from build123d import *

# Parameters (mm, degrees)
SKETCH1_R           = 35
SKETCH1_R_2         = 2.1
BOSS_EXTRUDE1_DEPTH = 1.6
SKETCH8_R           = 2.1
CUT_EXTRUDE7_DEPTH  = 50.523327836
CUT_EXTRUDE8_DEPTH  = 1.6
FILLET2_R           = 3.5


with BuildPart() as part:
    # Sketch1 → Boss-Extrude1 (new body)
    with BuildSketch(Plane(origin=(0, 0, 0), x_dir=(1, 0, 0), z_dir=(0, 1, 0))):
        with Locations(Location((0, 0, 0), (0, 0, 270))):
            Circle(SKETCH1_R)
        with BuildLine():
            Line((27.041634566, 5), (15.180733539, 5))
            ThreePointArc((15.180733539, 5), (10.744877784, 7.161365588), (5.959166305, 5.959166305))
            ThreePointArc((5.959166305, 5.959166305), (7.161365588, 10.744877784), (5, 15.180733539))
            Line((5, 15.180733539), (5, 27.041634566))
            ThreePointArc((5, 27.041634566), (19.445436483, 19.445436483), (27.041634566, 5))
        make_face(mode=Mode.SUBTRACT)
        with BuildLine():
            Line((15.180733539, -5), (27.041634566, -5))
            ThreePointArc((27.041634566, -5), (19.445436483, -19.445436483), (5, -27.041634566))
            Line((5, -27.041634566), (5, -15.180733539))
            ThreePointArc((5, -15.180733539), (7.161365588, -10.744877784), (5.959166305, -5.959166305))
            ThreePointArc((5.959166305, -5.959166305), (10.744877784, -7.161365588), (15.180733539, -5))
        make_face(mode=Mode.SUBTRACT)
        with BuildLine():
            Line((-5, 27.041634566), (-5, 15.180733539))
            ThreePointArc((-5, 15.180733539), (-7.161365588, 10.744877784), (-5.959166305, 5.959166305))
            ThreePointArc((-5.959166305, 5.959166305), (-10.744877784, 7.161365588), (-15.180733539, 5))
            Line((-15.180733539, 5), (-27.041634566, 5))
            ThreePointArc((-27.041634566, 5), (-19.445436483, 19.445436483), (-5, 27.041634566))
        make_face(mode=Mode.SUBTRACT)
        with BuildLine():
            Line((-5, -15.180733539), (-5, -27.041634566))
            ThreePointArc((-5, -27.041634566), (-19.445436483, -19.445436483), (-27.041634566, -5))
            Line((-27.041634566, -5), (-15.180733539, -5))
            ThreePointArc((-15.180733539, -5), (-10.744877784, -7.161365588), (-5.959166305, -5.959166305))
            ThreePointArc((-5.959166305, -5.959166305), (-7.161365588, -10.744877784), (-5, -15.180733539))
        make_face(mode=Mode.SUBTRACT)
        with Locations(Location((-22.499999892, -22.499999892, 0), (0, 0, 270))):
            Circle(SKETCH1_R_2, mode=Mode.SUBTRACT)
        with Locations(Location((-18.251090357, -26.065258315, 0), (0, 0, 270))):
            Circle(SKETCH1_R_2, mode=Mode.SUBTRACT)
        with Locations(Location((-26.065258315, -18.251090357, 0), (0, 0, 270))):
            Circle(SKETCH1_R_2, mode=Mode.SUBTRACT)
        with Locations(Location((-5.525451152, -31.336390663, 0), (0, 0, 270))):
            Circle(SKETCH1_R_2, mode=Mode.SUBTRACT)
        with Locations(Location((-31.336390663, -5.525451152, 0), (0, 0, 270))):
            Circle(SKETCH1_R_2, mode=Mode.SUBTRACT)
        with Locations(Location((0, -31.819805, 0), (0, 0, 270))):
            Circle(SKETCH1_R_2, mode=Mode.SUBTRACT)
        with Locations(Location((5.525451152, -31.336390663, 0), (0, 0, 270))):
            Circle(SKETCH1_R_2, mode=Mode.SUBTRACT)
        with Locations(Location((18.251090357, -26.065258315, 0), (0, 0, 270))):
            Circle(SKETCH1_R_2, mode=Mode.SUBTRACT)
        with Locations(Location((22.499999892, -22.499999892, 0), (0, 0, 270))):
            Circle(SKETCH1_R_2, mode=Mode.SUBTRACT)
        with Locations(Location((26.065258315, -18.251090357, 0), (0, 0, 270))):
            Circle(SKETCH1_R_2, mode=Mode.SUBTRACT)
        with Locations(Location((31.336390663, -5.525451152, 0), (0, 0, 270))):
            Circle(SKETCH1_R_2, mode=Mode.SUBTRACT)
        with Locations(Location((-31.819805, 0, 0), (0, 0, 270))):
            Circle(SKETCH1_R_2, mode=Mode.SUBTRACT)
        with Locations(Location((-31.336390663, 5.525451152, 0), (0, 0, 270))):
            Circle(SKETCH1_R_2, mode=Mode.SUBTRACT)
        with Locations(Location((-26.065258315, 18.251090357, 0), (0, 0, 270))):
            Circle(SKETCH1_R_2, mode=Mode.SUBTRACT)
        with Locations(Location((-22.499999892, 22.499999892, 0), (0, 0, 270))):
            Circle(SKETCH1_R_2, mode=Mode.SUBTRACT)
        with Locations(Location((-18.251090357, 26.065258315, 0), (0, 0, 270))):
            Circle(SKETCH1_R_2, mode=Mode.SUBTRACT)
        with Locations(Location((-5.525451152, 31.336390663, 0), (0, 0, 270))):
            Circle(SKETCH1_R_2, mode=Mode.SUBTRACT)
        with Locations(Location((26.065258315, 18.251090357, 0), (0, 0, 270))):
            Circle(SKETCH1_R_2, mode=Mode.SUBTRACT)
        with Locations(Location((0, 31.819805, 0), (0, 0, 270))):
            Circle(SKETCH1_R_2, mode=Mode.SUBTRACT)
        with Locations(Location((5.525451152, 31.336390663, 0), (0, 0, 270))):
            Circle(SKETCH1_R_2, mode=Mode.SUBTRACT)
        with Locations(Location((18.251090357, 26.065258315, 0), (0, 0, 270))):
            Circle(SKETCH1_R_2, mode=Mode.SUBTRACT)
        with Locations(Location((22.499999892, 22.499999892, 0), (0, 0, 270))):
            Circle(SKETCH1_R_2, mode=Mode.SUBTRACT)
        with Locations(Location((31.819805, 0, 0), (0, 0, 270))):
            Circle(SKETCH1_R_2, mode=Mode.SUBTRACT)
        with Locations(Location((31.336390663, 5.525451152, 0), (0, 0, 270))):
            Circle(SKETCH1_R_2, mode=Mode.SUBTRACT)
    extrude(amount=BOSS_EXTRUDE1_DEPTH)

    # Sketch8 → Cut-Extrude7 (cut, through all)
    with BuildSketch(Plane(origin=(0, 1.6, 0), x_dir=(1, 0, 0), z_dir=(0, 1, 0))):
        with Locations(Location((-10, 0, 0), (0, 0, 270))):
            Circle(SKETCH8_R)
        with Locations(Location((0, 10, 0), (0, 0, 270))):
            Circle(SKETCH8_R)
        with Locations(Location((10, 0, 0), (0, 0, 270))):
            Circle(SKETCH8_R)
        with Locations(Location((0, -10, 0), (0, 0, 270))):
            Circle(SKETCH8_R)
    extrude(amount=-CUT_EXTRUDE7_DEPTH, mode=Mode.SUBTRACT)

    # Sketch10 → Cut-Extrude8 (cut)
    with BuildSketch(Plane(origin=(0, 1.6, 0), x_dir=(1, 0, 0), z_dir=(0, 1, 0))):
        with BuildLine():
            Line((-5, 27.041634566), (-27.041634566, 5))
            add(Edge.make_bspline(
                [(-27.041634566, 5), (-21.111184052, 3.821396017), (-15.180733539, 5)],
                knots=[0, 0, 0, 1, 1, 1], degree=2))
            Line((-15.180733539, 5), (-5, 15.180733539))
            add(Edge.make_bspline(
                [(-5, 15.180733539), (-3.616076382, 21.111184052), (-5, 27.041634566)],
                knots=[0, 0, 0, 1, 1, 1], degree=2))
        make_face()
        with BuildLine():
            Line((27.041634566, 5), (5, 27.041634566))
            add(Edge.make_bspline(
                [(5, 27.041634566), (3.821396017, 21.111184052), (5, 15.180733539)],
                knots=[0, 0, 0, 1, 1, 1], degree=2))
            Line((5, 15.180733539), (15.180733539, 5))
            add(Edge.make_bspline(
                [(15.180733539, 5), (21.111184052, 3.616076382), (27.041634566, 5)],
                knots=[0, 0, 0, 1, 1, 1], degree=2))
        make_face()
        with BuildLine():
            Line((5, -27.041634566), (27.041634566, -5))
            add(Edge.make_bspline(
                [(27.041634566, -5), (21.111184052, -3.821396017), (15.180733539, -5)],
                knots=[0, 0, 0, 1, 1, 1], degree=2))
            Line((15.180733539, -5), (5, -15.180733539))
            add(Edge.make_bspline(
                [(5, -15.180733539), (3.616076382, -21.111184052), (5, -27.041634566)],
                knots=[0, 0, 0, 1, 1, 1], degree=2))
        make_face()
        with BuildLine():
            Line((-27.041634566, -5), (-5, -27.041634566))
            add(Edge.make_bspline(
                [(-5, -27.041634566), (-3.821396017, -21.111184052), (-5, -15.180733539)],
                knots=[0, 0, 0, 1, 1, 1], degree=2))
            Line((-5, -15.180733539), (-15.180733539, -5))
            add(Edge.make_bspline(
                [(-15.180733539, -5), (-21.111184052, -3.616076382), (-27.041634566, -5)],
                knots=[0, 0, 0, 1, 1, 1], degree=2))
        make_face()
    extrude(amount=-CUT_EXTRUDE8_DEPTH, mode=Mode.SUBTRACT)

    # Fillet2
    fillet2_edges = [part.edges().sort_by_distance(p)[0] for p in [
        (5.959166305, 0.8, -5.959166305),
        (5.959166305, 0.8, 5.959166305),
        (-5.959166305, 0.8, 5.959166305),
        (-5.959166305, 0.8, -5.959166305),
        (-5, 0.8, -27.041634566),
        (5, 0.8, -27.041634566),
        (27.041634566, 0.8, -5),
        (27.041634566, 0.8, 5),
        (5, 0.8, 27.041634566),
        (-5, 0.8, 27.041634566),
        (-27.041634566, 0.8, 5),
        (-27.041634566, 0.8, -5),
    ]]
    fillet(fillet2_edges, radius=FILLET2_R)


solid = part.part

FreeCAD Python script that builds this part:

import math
import FreeCAD as App
import Part
import Sketcher
from FreeCAD import Vector


def edges_at(feature, points):
    """Names of the edges that pass closest to the given points."""
    edges = feature.Shape.Edges
    near = lambda p: min(range(len(edges)), key=lambda i: edges[i].distToShape(Part.Vertex(*p))[0])
    return sorted({f"Edge{near(p) + 1}" for p in points})

doc = App.newDocument("Part")
body = doc.addObject("PartDesign::Body", "Body")

sketch1 = doc.addObject("Sketcher::SketchObject", "Sketch")
body.addObject(sketch1)
sketch1.AttachmentSupport = (doc.XZ_Plane, [""])
sketch1.MapMode = "FlatFace"
sketch1.addGeometry([
    Part.Circle(Vector(0, 0, 0), Vector(0, 0, 1), 35),
    Part.Circle(Vector(-26.065258, -18.25109, 0), Vector(0, 0, 1), 2.1),
    Part.Circle(Vector(-18.25109, -26.065258, 0), Vector(0, 0, 1), 2.1),
    Part.Circle(Vector(-22.5, -22.5, 0), Vector(0, 0, 1), 2.1),
    Part.Circle(Vector(-31.336391, -5.525451, 0), Vector(0, 0, 1), 2.1),
    Part.Circle(Vector(-5.525451, -31.336391, 0), Vector(0, 0, 1), 2.1),
    Part.ArcOfCircle(Part.Circle(Vector(0, 0, 0), Vector(0, 0, 1), 27.5), math.radians(-169.524318), math.radians(-100.475682)),
    Part.LineSegment(Vector(-5, -27.041635, 0), Vector(-5, -15.180734, 0)),
    Part.ArcOfCircle(Part.Circle(Vector(0, -10, 0), Vector(0, 0, 1), 7.2), math.radians(145.859311), math.radians(226.017037)),
    Part.ArcOfCircle(Part.Circle(Vector(-10, 0, 0), Vector(0, 0, 1), 7.2), math.radians(-136.017037), math.radians(-55.859311)),
    Part.LineSegment(Vector(-15.180734, -5, 0), Vector(-27.041635, -5, 0)),
    Part.Circle(Vector(-31.819805, 0, 0), Vector(0, 0, 1), 2.1),
    Part.Circle(Vector(-31.336391, 5.525451, 0), Vector(0, 0, 1), 2.1),
    Part.Circle(Vector(-26.065258, 18.25109, 0), Vector(0, 0, 1), 2.1),
    Part.Circle(Vector(-22.5, 22.5, 0), Vector(0, 0, 1), 2.1),
    Part.Circle(Vector(-18.25109, 26.065258, 0), Vector(0, 0, 1), 2.1),
    Part.ArcOfCircle(Part.Circle(Vector(0, 10, 0), Vector(0, 0, 1), 7.2), math.radians(133.982963), math.radians(214.140689)),
    Part.LineSegment(Vector(-5, 15.180734, 0), Vector(-5, 27.041635, 0)),
    Part.ArcOfCircle(Part.Circle(Vector(0, 0, 0), Vector(0, 0, 1), 27.5), math.radians(100.475682), math.radians(169.524318)),
    Part.LineSegment(Vector(-27.041635, 5, 0), Vector(-15.180734, 5, 0)),
    Part.ArcOfCircle(Part.Circle(Vector(-10, 0, 0), Vector(0, 0, 1), 7.2), math.radians(55.859311), math.radians(136.017037)),
    Part.Circle(Vector(-5.525451, 31.336391, 0), Vector(0, 0, 1), 2.1),
    Part.Circle(Vector(0, -31.819805, 0), Vector(0, 0, 1), 2.1),
    Part.Circle(Vector(5.525451, -31.336391, 0), Vector(0, 0, 1), 2.1),
    Part.ArcOfCircle(Part.Circle(Vector(0, 0, 0), Vector(0, 0, 1), 27.5), math.radians(-79.524318), math.radians(-10.475682)),
    Part.LineSegment(Vector(27.041635, -5, 0), Vector(15.180734, -5, 0)),
    Part.ArcOfCircle(Part.Circle(Vector(10, 0, 0), Vector(0, 0, 1), 7.2), math.radians(-124.140689), math.radians(-43.982963)),
    Part.ArcOfCircle(Part.Circle(Vector(0, -10, 0), Vector(0, 0, 1), 7.2), math.radians(-46.017037), math.radians(34.140689)),
    Part.LineSegment(Vector(5, -15.180734, 0), Vector(5, -27.041635, 0)),
    Part.Circle(Vector(18.25109, -26.065258, 0), Vector(0, 0, 1), 2.1),
    Part.Circle(Vector(22.5, -22.5, 0), Vector(0, 0, 1), 2.1),
    Part.Circle(Vector(26.065258, -18.25109, 0), Vector(0, 0, 1), 2.1),
    Part.Circle(Vector(31.336391, -5.525451, 0), Vector(0, 0, 1), 2.1),
    Part.Circle(Vector(31.819805, 0, 0), Vector(0, 0, 1), 2.1),
    Part.ArcOfCircle(Part.Circle(Vector(10, 0, 0), Vector(0, 0, 1), 7.2), math.radians(43.982963), math.radians(124.140689)),
    Part.LineSegment(Vector(15.180734, 5, 0), Vector(27.041635, 5, 0)),
    Part.ArcOfCircle(Part.Circle(Vector(0, 0, 0), Vector(0, 0, 1), 27.5), math.radians(10.475682), math.radians(79.524318)),
    Part.LineSegment(Vector(5, 27.041635, 0), Vector(5, 15.180734, 0)),
    Part.ArcOfCircle(Part.Circle(Vector(0, 10, 0), Vector(0, 0, 1), 7.2), math.radians(-34.140689), math.radians(46.017037)),
    Part.Circle(Vector(0, 31.819805, 0), Vector(0, 0, 1), 2.1),
    Part.Circle(Vector(5.525451, 31.336391, 0), Vector(0, 0, 1), 2.1),
    Part.Circle(Vector(31.336391, 5.525451, 0), Vector(0, 0, 1), 2.1),
    Part.Circle(Vector(22.5, 22.5, 0), Vector(0, 0, 1), 2.1),
    Part.Circle(Vector(18.25109, 26.065258, 0), Vector(0, 0, 1), 2.1),
    Part.Circle(Vector(26.065258, 18.25109, 0), Vector(0, 0, 1), 2.1),
], False)
sketch1.addConstraint([
    Sketcher.Constraint("Coincident", 6, 2, 7, 1),
    Sketcher.Constraint("Coincident", 7, 2, 8, 2),
    Sketcher.Constraint("Coincident", 8, 1, 9, 2),
    Sketcher.Constraint("Coincident", 9, 1, 10, 1),
    Sketcher.Constraint("Coincident", 10, 2, 6, 1),
    Sketcher.Constraint("Coincident", 16, 1, 17, 1),
    Sketcher.Constraint("Coincident", 17, 2, 18, 1),
    Sketcher.Constraint("Coincident", 18, 2, 19, 1),
    Sketcher.Constraint("Coincident", 19, 2, 20, 2),
    Sketcher.Constraint("Coincident", 20, 1, 16, 2),
    Sketcher.Constraint("Coincident", 24, 2, 25, 1),
    Sketcher.Constraint("Coincident", 25, 2, 26, 2),
    Sketcher.Constraint("Coincident", 26, 1, 27, 2),
    Sketcher.Constraint("Coincident", 27, 1, 28, 1),
    Sketcher.Constraint("Coincident", 28, 2, 24, 1),
    Sketcher.Constraint("Coincident", 34, 1, 35, 1),
    Sketcher.Constraint("Coincident", 35, 2, 36, 1),
    Sketcher.Constraint("Coincident", 36, 2, 37, 1),
    Sketcher.Constraint("Coincident", 37, 2, 38, 2),
    Sketcher.Constraint("Coincident", 38, 1, 34, 2),
    Sketcher.Constraint("Vertical", 7),
    Sketcher.Constraint("Horizontal", 10),
    Sketcher.Constraint("Vertical", 17),
    Sketcher.Constraint("Horizontal", 19),
    Sketcher.Constraint("Horizontal", 25),
    Sketcher.Constraint("Vertical", 28),
    Sketcher.Constraint("Horizontal", 35),
    Sketcher.Constraint("Vertical", 37),
    Sketcher.Constraint("Coincident", 0, 3, -1, 1),
    Sketcher.Constraint("Coincident", 6, 3, -1, 1),
    Sketcher.Constraint("Coincident", 18, 3, -1, 1),
    Sketcher.Constraint("Coincident", 24, 3, -1, 1),
    Sketcher.Constraint("Coincident", 36, 3, -1, 1),
    Sketcher.Constraint("Coincident", 20, 3, 9, 3),
    Sketcher.Constraint("Coincident", 27, 3, 8, 3),
    Sketcher.Constraint("Coincident", 34, 3, 26, 3),
    Sketcher.Constraint("Coincident", 38, 3, 16, 3),
    Sketcher.Constraint("Equal", 1, 2),
    Sketcher.Constraint("Equal", 2, 3),
    Sketcher.Constraint("Equal", 3, 4),
    Sketcher.Constraint("Equal", 4, 5),
    Sketcher.Constraint("Equal", 8, 9),
    Sketcher.Constraint("Equal", 5, 11),
    Sketcher.Constraint("Equal", 11, 12),
    Sketcher.Constraint("Equal", 12, 13),
    Sketcher.Constraint("Equal", 13, 14),
    Sketcher.Constraint("Equal", 14, 15),
    Sketcher.Constraint("Equal", 9, 16),
    Sketcher.Constraint("Equal", 6, 18),
    Sketcher.Constraint("Equal", 16, 20),
    Sketcher.Constraint("Equal", 15, 21),
    Sketcher.Constraint("Equal", 21, 22),
    Sketcher.Constraint("Equal", 22, 23),
    Sketcher.Constraint("Equal", 18, 24),
    Sketcher.Constraint("Equal", 20, 26),
    Sketcher.Constraint("Equal", 26, 27),
    Sketcher.Constraint("Equal", 23, 29),
    Sketcher.Constraint("Equal", 29, 30),
    Sketcher.Constraint("Equal", 30, 31),
    Sketcher.Constraint("Equal", 31, 32),
    Sketcher.Constraint("Equal", 32, 33),
    Sketcher.Constraint("Equal", 27, 34),
    Sketcher.Constraint("Equal", 24, 36),
    Sketcher.Constraint("Equal", 34, 38),
    Sketcher.Constraint("Equal", 33, 39),
    Sketcher.Constraint("Equal", 39, 40),
    Sketcher.Constraint("Equal", 40, 41),
    Sketcher.Constraint("Equal", 41, 42),
    Sketcher.Constraint("Equal", 42, 43),
    Sketcher.Constraint("Equal", 43, 44),
    Sketcher.Constraint("Symmetric", 8, 3, 16, 3, -1, 1),
    Sketcher.Constraint("Symmetric", 21, 3, 23, 3, -1, 1),
    Sketcher.Constraint("Symmetric", 9, 3, 26, 3, -1, 1),
    Sketcher.Constraint("Symmetric", 15, 3, 29, 3, -1, 1),
    Sketcher.Constraint("Symmetric", 14, 3, 30, 3, -1, 1),
    Sketcher.Constraint("Symmetric", 13, 3, 31, 3, -1, 1),
    Sketcher.Constraint("Symmetric", 12, 3, 32, 3, -1, 1),
    Sketcher.Constraint("Symmetric", 11, 3, 33, 3, -1, 1),
    Sketcher.Constraint("Symmetric", 22, 3, 39, 3, -1, 1),
    Sketcher.Constraint("Symmetric", 5, 3, 40, 3, -1, 1),
    Sketcher.Constraint("Symmetric", 4, 3, 41, 3, -1, 1),
    Sketcher.Constraint("Symmetric", 3, 3, 42, 3, -1, 1),
    Sketcher.Constraint("Symmetric", 2, 3, 43, 3, -1, 1),
    Sketcher.Constraint("Symmetric", 1, 3, 44, 3, -1, 1),
    Sketcher.Constraint("Symmetric", 5, 3, 23, 3, -2),
    Sketcher.Constraint("Symmetric", 2, 3, 29, 3, -2),
    Sketcher.Constraint("Symmetric", 3, 3, 30, 3, -2),
    Sketcher.Constraint("Symmetric", 1, 3, 31, 3, -2),
    Sketcher.Constraint("Symmetric", 4, 3, 32, 3, -2),
    Sketcher.Constraint("Symmetric", 9, 1, 25, 2, -2),
    Sketcher.Constraint("Symmetric", 7, 2, 27, 1, -2),
    Sketcher.Constraint("PointOnObject", 11, 3, -1),
    Sketcher.Constraint("PointOnObject", 22, 3, -2),
    Sketcher.Constraint("Horizontal", 19, 2, 34, 1),
    Sketcher.Constraint("Horizontal", 17, 2, 36, 2),
    Sketcher.Constraint("Vertical", 7, 2, 16, 1),
    Sketcher.Constraint("Vertical", 10, 2, 18, 2),
    Sketcher.Constraint("Equal", 35, 7),
    Sketcher.Constraint("Diameter", 0, 70.0),
    Sketcher.Constraint("Diameter", 1, 4.2),
    Sketcher.Constraint("Radius", 6, 27.5),
    Sketcher.Constraint("Radius", 8, 7.2),
    Sketcher.Constraint("DistanceY", 8, 3, -1, 1, 10.0),
    Sketcher.Constraint("DistanceX", 9, 3, -1, 1, 10.0),
    Sketcher.Constraint("DistanceX", 6, 2, -1, 1, 5.0),
    Sketcher.Constraint("DistanceX", 3, 3, -1, 1, 22.5),
    Sketcher.Constraint("DistanceY", 3, 3, -1, 1, 22.5),
    Sketcher.Constraint("DistanceX", 4, 3, 2, 3, 13.0853),
    Sketcher.Constraint("DistanceY", 5, 3, 1, 3, 13.0853),
    Sketcher.Constraint("DistanceX", 1, 3, -1, 1, 26.065258),
    Sketcher.Constraint("DistanceY", 1, 3, -1, 1, 18.25109),
    Sketcher.Constraint("DistanceX", 2, 3, -1, 1, 18.25109),
    Sketcher.Constraint("DistanceY", 2, 3, -1, 1, 26.065258),
    Sketcher.Constraint("DistanceY", 4, 3, -1, 1, 5.525451),
    Sketcher.Constraint("DistanceX", 5, 3, -1, 1, 5.525451),
    Sketcher.Constraint("DistanceY", 22, 3, 6, 2, 4.77817),
    Sketcher.Constraint("DistanceX", 11, 3, 10, 2, 4.77817),
])
pad1 = doc.addObject("PartDesign::Pad", "Pad")
body.addObject(pad1)
pad1.Profile = sketch1
pad1.Length = 1.6
pad1.Reversed = True

sketch2 = doc.addObject("Sketcher::SketchObject", "Sketch001")
body.addObject(sketch2)
sketch2.AttachmentSupport = (doc.XZ_Plane, [""])
sketch2.MapMode = "FlatFace"
sketch2.AttachmentOffset = App.Placement(Vector(0, 0, -1.6), App.Rotation())
sketch2.addGeometry([
    Part.Circle(Vector(-10, 0, 0), Vector(0, 0, 1), 2.1),
    Part.Circle(Vector(0, -10, 0), Vector(0, 0, 1), 2.1),
    Part.Circle(Vector(10, 0, 0), Vector(0, 0, 1), 2.1),
    Part.Circle(Vector(0, 10, 0), Vector(0, 0, 1), 2.1),
], False)
sketch2.addConstraint([
    Sketcher.Constraint("Equal", 0, 1),
    Sketcher.Constraint("Equal", 1, 2),
    Sketcher.Constraint("Equal", 2, 3),
    Sketcher.Constraint("Symmetric", 0, 3, 2, 3, -1, 1),
    Sketcher.Constraint("Symmetric", 1, 3, 3, 3, -1, 1),
    Sketcher.Constraint("PointOnObject", 0, 3, -1),
    Sketcher.Constraint("PointOnObject", 1, 3, -2),
    Sketcher.Constraint("Diameter", 0, 4.2),
    Sketcher.Constraint("DistanceX", 0, 3, -1, 1, 10.0),
    Sketcher.Constraint("DistanceY", 1, 3, -1, 1, 10.0),
])
pocket1 = doc.addObject("PartDesign::Pocket", "Pocket")
body.addObject(pocket1)
pocket1.Profile = sketch2
pocket1.Type = "ThroughAll"
pocket1.Reversed = True

sketch3 = doc.addObject("Sketcher::SketchObject", "Sketch002")
body.addObject(sketch3)
sketch3.AttachmentSupport = (doc.XZ_Plane, [""])
sketch3.MapMode = "FlatFace"
sketch3.AttachmentOffset = App.Placement(Vector(0, 0, -1.6), App.Rotation())
sketch3.addGeometry([
    Part.LineSegment(Vector(-5, -27.041635, 0), Vector(-27.041635, -5, 0)),
    Part.BSplineCurve([Vector(-27.041635, -5, 0), Vector(-21.111184, -3.821396, 0), Vector(-15.180734, -5, 0)], [3, 3], [0, 1], False, 2, [1, 1, 1], False),
    Part.LineSegment(Vector(-15.180734, -5, 0), Vector(-5, -15.180734, 0)),
    Part.BSplineCurve([Vector(-5, -15.180734, 0), Vector(-3.616076, -21.111184, 0), Vector(-5, -27.041635, 0)], [3, 3], [0, 1], False, 2, [1, 1, 1], False),
    Part.LineSegment(Vector(27.041635, -5, 0), Vector(5, -27.041635, 0)),
    Part.BSplineCurve([Vector(5, -27.041635, 0), Vector(3.821396, -21.111184, 0), Vector(5, -15.180734, 0)], [3, 3], [0, 1], False, 2, [1, 1, 1], False),
    Part.LineSegment(Vector(5, -15.180734, 0), Vector(15.180734, -5, 0)),
    Part.BSplineCurve([Vector(15.180734, -5, 0), Vector(21.111184, -3.616076, 0), Vector(27.041635, -5, 0)], [3, 3], [0, 1], False, 2, [1, 1, 1], False),
    Part.LineSegment(Vector(5, 27.041635, 0), Vector(27.041635, 5, 0)),
    Part.BSplineCurve([Vector(27.041635, 5, 0), Vector(21.111184, 3.821396, 0), Vector(15.180734, 5, 0)], [3, 3], [0, 1], False, 2, [1, 1, 1], False),
    Part.LineSegment(Vector(15.180734, 5, 0), Vector(5, 15.180734, 0)),
    Part.BSplineCurve([Vector(5, 15.180734, 0), Vector(3.616076, 21.111184, 0), Vector(5, 27.041635, 0)], [3, 3], [0, 1], False, 2, [1, 1, 1], False),
    Part.LineSegment(Vector(-27.041635, 5, 0), Vector(-5, 27.041635, 0)),
    Part.BSplineCurve([Vector(-5, 27.041635, 0), Vector(-3.821396, 21.111184, 0), Vector(-5, 15.180734, 0)], [3, 3], [0, 1], False, 2, [1, 1, 1], False),
    Part.LineSegment(Vector(-5, 15.180734, 0), Vector(-15.180734, 5, 0)),
    Part.BSplineCurve([Vector(-15.180734, 5, 0), Vector(-21.111184, 3.616076, 0), Vector(-27.041635, 5, 0)], [3, 3], [0, 1], False, 2, [1, 1, 1], False),
], False)
sketch3.addConstraint([
    Sketcher.Constraint("Block", 1),
    Sketcher.Constraint("Block", 3),
    Sketcher.Constraint("Block", 5),
    Sketcher.Constraint("Block", 7),
    Sketcher.Constraint("Block", 9),
    Sketcher.Constraint("Block", 11),
    Sketcher.Constraint("Block", 13),
    Sketcher.Constraint("Block", 15),
    Sketcher.Constraint("Coincident", 0, 2, 1, 1),
    Sketcher.Constraint("Coincident", 1, 2, 2, 1),
    Sketcher.Constraint("Coincident", 2, 2, 3, 1),
    Sketcher.Constraint("Coincident", 3, 2, 0, 1),
    Sketcher.Constraint("Coincident", 4, 2, 5, 1),
    Sketcher.Constraint("Coincident", 5, 2, 6, 1),
    Sketcher.Constraint("Coincident", 6, 2, 7, 1),
    Sketcher.Constraint("Coincident", 7, 2, 4, 1),
    Sketcher.Constraint("Coincident", 8, 2, 9, 1),
    Sketcher.Constraint("Coincident", 9, 2, 10, 1),
    Sketcher.Constraint("Coincident", 10, 2, 11, 1),
    Sketcher.Constraint("Coincident", 11, 2, 8, 1),
    Sketcher.Constraint("Coincident", 12, 2, 13, 1),
    Sketcher.Constraint("Coincident", 13, 2, 14, 1),
    Sketcher.Constraint("Coincident", 14, 2, 15, 1),
    Sketcher.Constraint("Coincident", 15, 2, 12, 1),
])
pocket2 = doc.addObject("PartDesign::Pocket", "Pocket001")
body.addObject(pocket2)
pocket2.Profile = sketch3
pocket2.Length = 1.6
pocket2.Reversed = True
doc.recompute()

fillet = doc.addObject("PartDesign::Fillet", "Fillet")
body.addObject(fillet)
fillet.Base = (pocket2, edges_at(pocket2, [
    (5.959, 0.8, -5.959),
    (5.959, 0.8, 5.959),
    (-5.959, 0.8, 5.959),
    (-5.959, 0.8, -5.959),
    (-5, 0.8, -27.042),
    (5, 0.8, -27.042),
    (27.042, 0.8, -5),
    (27.042, 0.8, 5),
    (5, 0.8, 27.042),
    (-5, 0.8, 27.042),
    (-27.042, 0.8, 5),
    (-27.042, 0.8, -5),
]))
fillet.Radius = 3.5

doc.recompute()
